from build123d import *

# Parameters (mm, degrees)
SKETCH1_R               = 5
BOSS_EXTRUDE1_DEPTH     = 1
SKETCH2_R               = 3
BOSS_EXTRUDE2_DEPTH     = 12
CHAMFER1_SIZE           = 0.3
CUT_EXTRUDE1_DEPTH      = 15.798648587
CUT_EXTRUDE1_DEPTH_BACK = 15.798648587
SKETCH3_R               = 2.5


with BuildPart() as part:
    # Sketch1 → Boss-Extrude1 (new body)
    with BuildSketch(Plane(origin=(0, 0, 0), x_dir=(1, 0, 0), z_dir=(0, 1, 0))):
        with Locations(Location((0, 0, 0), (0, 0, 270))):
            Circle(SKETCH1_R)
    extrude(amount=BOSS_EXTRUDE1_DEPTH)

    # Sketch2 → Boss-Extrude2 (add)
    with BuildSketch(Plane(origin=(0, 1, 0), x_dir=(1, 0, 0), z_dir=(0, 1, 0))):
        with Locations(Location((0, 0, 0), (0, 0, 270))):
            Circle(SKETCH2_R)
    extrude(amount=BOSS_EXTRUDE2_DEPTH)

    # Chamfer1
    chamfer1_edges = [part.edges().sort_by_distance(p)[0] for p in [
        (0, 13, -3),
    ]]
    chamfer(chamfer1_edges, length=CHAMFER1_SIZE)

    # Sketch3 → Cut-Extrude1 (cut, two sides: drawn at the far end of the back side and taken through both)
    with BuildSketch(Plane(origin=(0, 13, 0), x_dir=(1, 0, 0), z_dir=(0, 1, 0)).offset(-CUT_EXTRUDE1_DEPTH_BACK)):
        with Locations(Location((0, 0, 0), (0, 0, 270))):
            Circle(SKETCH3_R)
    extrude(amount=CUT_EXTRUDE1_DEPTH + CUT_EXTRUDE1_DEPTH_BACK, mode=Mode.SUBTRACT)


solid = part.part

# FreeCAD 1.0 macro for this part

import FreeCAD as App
import Part
import Sketcher
from FreeCAD import Vector
Q = App.Units.Quantity


def edges_at(feature, points):
    """Names of the edges that pass closest to the given points."""
    edges = feature.Shape.Edges
    near = lambda p: min(range(len(edges)), key=lambda i: edges[i].distToShape(Part.Vertex(*p))[0])
    return sorted({f"Edge{near(p) + 1}" for p in points})

doc = App.newDocument("Part")
body = doc.addObject("PartDesign::Body", "Body")

sketch1 = body.newObject("Sketcher::SketchObject", "Sketch")
sketch1.AttachmentSupport = (doc.getObject("XZ_Plane"), [""])
sketch1.MapMode = "FlatFace"
sketch1.addGeometry(Part.Circle(Vector(0, 0, 0), Vector(0, 0, 1), 5), False)
sketch1.addConstraint([
    Sketcher.Constraint("Coincident", 0, 3, -1, 1),
    Sketcher.Constraint("Diameter", 0, Q("10 mm")),
])
pad1 = body.newObject("PartDesign::Pad", "Pad")
pad1.Profile = sketch1
pad1.Length = 1
pad1.Reversed = True

sketch2 = body.newObject("Sketcher::SketchObject", "Sketch001")
sketch2.AttachmentSupport = (doc.getObject("XZ_Plane"), [""])
sketch2.MapMode = "FlatFace"
sketch2.AttachmentOffset = App.Placement(Vector(0, 0, -1), App.Rotation())
sketch2.addGeometry(Part.Circle(Vector(0, 0, 0), Vector(0, 0, 1), 3), False)
sketch2.addConstraint([
    Sketcher.Constraint("Coincident", 0, 3, -1, 1),
    Sketcher.Constraint("Diameter", 0, Q("6 mm")),
])
pad2 = body.newObject("PartDesign::Pad", "Pad001")
pad2.Profile = sketch2
pad2.Length = 12
pad2.Reversed = True
doc.recompute()

chamfer = body.newObject("PartDesign::Chamfer", "Chamfer")
chamfer.Base = (pad2, edges_at(pad2, [(0, 13, -3)]))
chamfer.Size = 0.3

sketch3 = body.newObject("Sketcher::SketchObject", "Sketch002")
sketch3.AttachmentSupport = (doc.getObject("XZ_Plane"), [""])
sketch3.MapMode = "FlatFace"
sketch3.AttachmentOffset = App.Placement(Vector(0, 0, -13), App.Rotation())
sketch3.addGeometry(Part.Circle(Vector(0, 0, 0), Vector(0, 0, 1), 2.5), False)
sketch3.addConstraint([
    Sketcher.Constraint("Coincident", 0, 3, -1, 1),
    Sketcher.Constraint("Diameter", 0, Q("5 mm")),
])
pocket1 = body.newObject("PartDesign::Pocket", "Pocket")
pocket1.Profile = sketch3
pocket1.Type = "ThroughAll"
pocket1.Midplane = True

doc.recompute()
